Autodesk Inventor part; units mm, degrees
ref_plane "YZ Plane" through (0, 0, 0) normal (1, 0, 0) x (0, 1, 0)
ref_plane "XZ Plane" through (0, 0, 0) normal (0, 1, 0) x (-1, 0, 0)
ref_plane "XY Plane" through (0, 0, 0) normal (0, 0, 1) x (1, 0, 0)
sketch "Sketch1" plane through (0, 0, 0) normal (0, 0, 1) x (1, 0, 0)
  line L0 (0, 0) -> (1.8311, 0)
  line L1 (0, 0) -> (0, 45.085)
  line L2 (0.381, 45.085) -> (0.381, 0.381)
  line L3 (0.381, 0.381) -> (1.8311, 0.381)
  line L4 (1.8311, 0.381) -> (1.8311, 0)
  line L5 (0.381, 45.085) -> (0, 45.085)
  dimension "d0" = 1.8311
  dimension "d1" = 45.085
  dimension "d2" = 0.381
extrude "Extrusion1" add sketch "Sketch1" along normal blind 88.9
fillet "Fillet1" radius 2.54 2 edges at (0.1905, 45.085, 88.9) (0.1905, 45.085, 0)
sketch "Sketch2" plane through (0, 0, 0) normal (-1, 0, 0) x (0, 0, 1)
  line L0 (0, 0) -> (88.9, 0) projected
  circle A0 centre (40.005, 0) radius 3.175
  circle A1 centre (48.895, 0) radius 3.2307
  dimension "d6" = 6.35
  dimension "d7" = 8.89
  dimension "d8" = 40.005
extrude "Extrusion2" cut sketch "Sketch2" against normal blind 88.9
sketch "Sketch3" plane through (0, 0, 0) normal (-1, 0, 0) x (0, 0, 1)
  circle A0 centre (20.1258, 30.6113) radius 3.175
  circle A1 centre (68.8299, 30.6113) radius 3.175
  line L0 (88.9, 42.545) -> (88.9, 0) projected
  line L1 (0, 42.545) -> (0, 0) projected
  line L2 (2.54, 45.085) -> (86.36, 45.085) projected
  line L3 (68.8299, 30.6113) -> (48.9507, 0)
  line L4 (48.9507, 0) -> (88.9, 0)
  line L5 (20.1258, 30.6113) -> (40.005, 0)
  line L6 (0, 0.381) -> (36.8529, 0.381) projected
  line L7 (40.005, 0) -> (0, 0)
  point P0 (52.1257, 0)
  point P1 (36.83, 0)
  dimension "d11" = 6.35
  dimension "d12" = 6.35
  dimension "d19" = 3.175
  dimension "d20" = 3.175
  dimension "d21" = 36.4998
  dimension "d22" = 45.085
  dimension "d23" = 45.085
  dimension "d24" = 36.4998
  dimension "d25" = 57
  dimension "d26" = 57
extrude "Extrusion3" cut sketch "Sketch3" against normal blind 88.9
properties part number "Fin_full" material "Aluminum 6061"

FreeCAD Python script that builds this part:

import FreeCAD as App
import Part
import Sketcher
from FreeCAD import Vector
Q = App.Units.Quantity


def edges_at(feature, points):
    """Names of the edges that pass closest to the given points."""
    edges = feature.Shape.Edges
    near = lambda p: min(range(len(edges)), key=lambda i: edges[i].distToShape(Part.Vertex(*p))[0])
    return sorted({f"Edge{near(p) + 1}" for p in points})

doc = App.newDocument("Part")
body = doc.addObject("PartDesign::Body", "Body")

sketch1 = doc.addObject("Sketcher::SketchObject", "Sketch")
body.addObject(sketch1)
sketch1.AttachmentSupport = (doc.XY_Plane, [""])
sketch1.MapMode = "FlatFace"
sketch1.addGeometry([
    Part.LineSegment(Vector(0, 45.09, 0), Vector(0, 0, 0)),
    Part.LineSegment(Vector(0, 0, 0), Vector(1.83, 0, 0)),
    Part.LineSegment(Vector(1.83, 0, 0), Vector(1.83, 0.38, 0)),
    Part.LineSegment(Vector(1.83, 0.38, 0), Vector(0.38, 0.38, 0)),
    Part.LineSegment(Vector(0.38, 0.38, 0), Vector(0.38, 45.09, 0)),
    Part.LineSegment(Vector(0.38, 45.09, 0), Vector(0, 45.09, 0)),
], False)
sketch1.addConstraint([
    Sketcher.Constraint("Coincident", 0, 2, 1, 1),
    Sketcher.Constraint("Coincident", 1, 2, 2, 1),
    Sketcher.Constraint("Coincident", 2, 2, 3, 1),
    Sketcher.Constraint("Coincident", 3, 2, 4, 1),
    Sketcher.Constraint("Coincident", 4, 2, 5, 1),
    Sketcher.Constraint("Coincident", 5, 2, 0, 1),
    Sketcher.Constraint("Vertical", 0),
    Sketcher.Constraint("Horizontal", 1),
    Sketcher.Constraint("Vertical", 2),
    Sketcher.Constraint("Horizontal", 3),
    Sketcher.Constraint("Vertical", 4),
    Sketcher.Constraint("Horizontal", 5),
    Sketcher.Constraint("Coincident", 0, 2, -1, 1),
    Sketcher.Constraint("Equal", 5, 2),
    Sketcher.Constraint("DistanceX", 5, 2, 5, 1, Q("0.015 in")),
    Sketcher.Constraint("DistanceY", 0, 2, 0, 1, Q("1.775 in")),
    Sketcher.Constraint("DistanceX", 1, 1, 1, 2, Q("0.0721 in")),
])
pad1 = doc.addObject("PartDesign::Pad", "Pad")
body.addObject(pad1)
pad1.Profile = sketch1
pad1.Length = Q("3.5 in")
doc.recompute()

fillet = doc.addObject("PartDesign::Fillet", "Fillet")
body.addObject(fillet)
fillet.Base = (pad1, edges_at(pad1, [(0.191, 45.085, 88.9), (0.191, 45.085, 0)]))
fillet.Radius = Q("0.1 in")

sketch2 = doc.addObject("Sketcher::SketchObject", "Sketch001")
body.addObject(sketch2)
sketch2.AttachmentSupport = (doc.YZ_Plane, [""])
sketch2.MapMode = "FlatFace"
sketch2.addGeometry([
    Part.Circle(Vector(0, 40, 0), Vector(0, 0, 1), 3.2),
    Part.Circle(Vector(0, 48.9, 0), Vector(0, 0, 1), 3.2),
], False)
sketch2.addConstraint([
    Sketcher.Constraint("PointOnObject", 0, 3, -2),
    Sketcher.Constraint("PointOnObject", 1, 3, -2),
    Sketcher.Constraint("Diameter", 0, Q("0.25 in")),
    Sketcher.Constraint("DistanceY", 0, 3, 1, 3, Q("0.35 in")),
    Sketcher.Constraint("DistanceY", -1, 1, 0, 3, Q("1.575 in")),
    Sketcher.Constraint("Diameter", 1, Q("6.4614 mm")),
])
pocket1 = doc.addObject("PartDesign::Pocket", "Pocket")
body.addObject(pocket1)
pocket1.Profile = sketch2
pocket1.Length = Q("3.5 in")
pocket1.Reversed = True

sketch3 = doc.addObject("Sketcher::SketchObject", "Sketch002")
body.addObject(sketch3)
sketch3.AttachmentSupport = (doc.YZ_Plane, [""])
sketch3.MapMode = "FlatFace"
sketch3.addGeometry([
    Part.Circle(Vector(30.6, 20.1, 0), Vector(0, 0, 1), 3.2),
    Part.Circle(Vector(30.6, 68.8, 0), Vector(0, 0, 1), 3.2),
], False)
sketch3.addConstraint([
    Sketcher.Constraint("Equal", 0, 1),
    Sketcher.Constraint("Vertical", 0, 3, 1, 3),
    Sketcher.Constraint("Diameter", 0, Q("0.25 in")),
    Sketcher.Constraint("DistanceX", -1, 1, 0, 3, Q("30.6113 mm")),
    Sketcher.Constraint("DistanceY", -1, 1, 0, 3, Q("20.1258 mm")),
    Sketcher.Constraint("DistanceY", -1, 1, 1, 3, Q("68.83 mm")),
])
pocket2 = doc.addObject("PartDesign::Pocket", "Pocket001")
body.addObject(pocket2)
pocket2.Profile = sketch3
pocket2.Length = Q("3.5 in")
pocket2.Reversed = True

doc.recompute()
